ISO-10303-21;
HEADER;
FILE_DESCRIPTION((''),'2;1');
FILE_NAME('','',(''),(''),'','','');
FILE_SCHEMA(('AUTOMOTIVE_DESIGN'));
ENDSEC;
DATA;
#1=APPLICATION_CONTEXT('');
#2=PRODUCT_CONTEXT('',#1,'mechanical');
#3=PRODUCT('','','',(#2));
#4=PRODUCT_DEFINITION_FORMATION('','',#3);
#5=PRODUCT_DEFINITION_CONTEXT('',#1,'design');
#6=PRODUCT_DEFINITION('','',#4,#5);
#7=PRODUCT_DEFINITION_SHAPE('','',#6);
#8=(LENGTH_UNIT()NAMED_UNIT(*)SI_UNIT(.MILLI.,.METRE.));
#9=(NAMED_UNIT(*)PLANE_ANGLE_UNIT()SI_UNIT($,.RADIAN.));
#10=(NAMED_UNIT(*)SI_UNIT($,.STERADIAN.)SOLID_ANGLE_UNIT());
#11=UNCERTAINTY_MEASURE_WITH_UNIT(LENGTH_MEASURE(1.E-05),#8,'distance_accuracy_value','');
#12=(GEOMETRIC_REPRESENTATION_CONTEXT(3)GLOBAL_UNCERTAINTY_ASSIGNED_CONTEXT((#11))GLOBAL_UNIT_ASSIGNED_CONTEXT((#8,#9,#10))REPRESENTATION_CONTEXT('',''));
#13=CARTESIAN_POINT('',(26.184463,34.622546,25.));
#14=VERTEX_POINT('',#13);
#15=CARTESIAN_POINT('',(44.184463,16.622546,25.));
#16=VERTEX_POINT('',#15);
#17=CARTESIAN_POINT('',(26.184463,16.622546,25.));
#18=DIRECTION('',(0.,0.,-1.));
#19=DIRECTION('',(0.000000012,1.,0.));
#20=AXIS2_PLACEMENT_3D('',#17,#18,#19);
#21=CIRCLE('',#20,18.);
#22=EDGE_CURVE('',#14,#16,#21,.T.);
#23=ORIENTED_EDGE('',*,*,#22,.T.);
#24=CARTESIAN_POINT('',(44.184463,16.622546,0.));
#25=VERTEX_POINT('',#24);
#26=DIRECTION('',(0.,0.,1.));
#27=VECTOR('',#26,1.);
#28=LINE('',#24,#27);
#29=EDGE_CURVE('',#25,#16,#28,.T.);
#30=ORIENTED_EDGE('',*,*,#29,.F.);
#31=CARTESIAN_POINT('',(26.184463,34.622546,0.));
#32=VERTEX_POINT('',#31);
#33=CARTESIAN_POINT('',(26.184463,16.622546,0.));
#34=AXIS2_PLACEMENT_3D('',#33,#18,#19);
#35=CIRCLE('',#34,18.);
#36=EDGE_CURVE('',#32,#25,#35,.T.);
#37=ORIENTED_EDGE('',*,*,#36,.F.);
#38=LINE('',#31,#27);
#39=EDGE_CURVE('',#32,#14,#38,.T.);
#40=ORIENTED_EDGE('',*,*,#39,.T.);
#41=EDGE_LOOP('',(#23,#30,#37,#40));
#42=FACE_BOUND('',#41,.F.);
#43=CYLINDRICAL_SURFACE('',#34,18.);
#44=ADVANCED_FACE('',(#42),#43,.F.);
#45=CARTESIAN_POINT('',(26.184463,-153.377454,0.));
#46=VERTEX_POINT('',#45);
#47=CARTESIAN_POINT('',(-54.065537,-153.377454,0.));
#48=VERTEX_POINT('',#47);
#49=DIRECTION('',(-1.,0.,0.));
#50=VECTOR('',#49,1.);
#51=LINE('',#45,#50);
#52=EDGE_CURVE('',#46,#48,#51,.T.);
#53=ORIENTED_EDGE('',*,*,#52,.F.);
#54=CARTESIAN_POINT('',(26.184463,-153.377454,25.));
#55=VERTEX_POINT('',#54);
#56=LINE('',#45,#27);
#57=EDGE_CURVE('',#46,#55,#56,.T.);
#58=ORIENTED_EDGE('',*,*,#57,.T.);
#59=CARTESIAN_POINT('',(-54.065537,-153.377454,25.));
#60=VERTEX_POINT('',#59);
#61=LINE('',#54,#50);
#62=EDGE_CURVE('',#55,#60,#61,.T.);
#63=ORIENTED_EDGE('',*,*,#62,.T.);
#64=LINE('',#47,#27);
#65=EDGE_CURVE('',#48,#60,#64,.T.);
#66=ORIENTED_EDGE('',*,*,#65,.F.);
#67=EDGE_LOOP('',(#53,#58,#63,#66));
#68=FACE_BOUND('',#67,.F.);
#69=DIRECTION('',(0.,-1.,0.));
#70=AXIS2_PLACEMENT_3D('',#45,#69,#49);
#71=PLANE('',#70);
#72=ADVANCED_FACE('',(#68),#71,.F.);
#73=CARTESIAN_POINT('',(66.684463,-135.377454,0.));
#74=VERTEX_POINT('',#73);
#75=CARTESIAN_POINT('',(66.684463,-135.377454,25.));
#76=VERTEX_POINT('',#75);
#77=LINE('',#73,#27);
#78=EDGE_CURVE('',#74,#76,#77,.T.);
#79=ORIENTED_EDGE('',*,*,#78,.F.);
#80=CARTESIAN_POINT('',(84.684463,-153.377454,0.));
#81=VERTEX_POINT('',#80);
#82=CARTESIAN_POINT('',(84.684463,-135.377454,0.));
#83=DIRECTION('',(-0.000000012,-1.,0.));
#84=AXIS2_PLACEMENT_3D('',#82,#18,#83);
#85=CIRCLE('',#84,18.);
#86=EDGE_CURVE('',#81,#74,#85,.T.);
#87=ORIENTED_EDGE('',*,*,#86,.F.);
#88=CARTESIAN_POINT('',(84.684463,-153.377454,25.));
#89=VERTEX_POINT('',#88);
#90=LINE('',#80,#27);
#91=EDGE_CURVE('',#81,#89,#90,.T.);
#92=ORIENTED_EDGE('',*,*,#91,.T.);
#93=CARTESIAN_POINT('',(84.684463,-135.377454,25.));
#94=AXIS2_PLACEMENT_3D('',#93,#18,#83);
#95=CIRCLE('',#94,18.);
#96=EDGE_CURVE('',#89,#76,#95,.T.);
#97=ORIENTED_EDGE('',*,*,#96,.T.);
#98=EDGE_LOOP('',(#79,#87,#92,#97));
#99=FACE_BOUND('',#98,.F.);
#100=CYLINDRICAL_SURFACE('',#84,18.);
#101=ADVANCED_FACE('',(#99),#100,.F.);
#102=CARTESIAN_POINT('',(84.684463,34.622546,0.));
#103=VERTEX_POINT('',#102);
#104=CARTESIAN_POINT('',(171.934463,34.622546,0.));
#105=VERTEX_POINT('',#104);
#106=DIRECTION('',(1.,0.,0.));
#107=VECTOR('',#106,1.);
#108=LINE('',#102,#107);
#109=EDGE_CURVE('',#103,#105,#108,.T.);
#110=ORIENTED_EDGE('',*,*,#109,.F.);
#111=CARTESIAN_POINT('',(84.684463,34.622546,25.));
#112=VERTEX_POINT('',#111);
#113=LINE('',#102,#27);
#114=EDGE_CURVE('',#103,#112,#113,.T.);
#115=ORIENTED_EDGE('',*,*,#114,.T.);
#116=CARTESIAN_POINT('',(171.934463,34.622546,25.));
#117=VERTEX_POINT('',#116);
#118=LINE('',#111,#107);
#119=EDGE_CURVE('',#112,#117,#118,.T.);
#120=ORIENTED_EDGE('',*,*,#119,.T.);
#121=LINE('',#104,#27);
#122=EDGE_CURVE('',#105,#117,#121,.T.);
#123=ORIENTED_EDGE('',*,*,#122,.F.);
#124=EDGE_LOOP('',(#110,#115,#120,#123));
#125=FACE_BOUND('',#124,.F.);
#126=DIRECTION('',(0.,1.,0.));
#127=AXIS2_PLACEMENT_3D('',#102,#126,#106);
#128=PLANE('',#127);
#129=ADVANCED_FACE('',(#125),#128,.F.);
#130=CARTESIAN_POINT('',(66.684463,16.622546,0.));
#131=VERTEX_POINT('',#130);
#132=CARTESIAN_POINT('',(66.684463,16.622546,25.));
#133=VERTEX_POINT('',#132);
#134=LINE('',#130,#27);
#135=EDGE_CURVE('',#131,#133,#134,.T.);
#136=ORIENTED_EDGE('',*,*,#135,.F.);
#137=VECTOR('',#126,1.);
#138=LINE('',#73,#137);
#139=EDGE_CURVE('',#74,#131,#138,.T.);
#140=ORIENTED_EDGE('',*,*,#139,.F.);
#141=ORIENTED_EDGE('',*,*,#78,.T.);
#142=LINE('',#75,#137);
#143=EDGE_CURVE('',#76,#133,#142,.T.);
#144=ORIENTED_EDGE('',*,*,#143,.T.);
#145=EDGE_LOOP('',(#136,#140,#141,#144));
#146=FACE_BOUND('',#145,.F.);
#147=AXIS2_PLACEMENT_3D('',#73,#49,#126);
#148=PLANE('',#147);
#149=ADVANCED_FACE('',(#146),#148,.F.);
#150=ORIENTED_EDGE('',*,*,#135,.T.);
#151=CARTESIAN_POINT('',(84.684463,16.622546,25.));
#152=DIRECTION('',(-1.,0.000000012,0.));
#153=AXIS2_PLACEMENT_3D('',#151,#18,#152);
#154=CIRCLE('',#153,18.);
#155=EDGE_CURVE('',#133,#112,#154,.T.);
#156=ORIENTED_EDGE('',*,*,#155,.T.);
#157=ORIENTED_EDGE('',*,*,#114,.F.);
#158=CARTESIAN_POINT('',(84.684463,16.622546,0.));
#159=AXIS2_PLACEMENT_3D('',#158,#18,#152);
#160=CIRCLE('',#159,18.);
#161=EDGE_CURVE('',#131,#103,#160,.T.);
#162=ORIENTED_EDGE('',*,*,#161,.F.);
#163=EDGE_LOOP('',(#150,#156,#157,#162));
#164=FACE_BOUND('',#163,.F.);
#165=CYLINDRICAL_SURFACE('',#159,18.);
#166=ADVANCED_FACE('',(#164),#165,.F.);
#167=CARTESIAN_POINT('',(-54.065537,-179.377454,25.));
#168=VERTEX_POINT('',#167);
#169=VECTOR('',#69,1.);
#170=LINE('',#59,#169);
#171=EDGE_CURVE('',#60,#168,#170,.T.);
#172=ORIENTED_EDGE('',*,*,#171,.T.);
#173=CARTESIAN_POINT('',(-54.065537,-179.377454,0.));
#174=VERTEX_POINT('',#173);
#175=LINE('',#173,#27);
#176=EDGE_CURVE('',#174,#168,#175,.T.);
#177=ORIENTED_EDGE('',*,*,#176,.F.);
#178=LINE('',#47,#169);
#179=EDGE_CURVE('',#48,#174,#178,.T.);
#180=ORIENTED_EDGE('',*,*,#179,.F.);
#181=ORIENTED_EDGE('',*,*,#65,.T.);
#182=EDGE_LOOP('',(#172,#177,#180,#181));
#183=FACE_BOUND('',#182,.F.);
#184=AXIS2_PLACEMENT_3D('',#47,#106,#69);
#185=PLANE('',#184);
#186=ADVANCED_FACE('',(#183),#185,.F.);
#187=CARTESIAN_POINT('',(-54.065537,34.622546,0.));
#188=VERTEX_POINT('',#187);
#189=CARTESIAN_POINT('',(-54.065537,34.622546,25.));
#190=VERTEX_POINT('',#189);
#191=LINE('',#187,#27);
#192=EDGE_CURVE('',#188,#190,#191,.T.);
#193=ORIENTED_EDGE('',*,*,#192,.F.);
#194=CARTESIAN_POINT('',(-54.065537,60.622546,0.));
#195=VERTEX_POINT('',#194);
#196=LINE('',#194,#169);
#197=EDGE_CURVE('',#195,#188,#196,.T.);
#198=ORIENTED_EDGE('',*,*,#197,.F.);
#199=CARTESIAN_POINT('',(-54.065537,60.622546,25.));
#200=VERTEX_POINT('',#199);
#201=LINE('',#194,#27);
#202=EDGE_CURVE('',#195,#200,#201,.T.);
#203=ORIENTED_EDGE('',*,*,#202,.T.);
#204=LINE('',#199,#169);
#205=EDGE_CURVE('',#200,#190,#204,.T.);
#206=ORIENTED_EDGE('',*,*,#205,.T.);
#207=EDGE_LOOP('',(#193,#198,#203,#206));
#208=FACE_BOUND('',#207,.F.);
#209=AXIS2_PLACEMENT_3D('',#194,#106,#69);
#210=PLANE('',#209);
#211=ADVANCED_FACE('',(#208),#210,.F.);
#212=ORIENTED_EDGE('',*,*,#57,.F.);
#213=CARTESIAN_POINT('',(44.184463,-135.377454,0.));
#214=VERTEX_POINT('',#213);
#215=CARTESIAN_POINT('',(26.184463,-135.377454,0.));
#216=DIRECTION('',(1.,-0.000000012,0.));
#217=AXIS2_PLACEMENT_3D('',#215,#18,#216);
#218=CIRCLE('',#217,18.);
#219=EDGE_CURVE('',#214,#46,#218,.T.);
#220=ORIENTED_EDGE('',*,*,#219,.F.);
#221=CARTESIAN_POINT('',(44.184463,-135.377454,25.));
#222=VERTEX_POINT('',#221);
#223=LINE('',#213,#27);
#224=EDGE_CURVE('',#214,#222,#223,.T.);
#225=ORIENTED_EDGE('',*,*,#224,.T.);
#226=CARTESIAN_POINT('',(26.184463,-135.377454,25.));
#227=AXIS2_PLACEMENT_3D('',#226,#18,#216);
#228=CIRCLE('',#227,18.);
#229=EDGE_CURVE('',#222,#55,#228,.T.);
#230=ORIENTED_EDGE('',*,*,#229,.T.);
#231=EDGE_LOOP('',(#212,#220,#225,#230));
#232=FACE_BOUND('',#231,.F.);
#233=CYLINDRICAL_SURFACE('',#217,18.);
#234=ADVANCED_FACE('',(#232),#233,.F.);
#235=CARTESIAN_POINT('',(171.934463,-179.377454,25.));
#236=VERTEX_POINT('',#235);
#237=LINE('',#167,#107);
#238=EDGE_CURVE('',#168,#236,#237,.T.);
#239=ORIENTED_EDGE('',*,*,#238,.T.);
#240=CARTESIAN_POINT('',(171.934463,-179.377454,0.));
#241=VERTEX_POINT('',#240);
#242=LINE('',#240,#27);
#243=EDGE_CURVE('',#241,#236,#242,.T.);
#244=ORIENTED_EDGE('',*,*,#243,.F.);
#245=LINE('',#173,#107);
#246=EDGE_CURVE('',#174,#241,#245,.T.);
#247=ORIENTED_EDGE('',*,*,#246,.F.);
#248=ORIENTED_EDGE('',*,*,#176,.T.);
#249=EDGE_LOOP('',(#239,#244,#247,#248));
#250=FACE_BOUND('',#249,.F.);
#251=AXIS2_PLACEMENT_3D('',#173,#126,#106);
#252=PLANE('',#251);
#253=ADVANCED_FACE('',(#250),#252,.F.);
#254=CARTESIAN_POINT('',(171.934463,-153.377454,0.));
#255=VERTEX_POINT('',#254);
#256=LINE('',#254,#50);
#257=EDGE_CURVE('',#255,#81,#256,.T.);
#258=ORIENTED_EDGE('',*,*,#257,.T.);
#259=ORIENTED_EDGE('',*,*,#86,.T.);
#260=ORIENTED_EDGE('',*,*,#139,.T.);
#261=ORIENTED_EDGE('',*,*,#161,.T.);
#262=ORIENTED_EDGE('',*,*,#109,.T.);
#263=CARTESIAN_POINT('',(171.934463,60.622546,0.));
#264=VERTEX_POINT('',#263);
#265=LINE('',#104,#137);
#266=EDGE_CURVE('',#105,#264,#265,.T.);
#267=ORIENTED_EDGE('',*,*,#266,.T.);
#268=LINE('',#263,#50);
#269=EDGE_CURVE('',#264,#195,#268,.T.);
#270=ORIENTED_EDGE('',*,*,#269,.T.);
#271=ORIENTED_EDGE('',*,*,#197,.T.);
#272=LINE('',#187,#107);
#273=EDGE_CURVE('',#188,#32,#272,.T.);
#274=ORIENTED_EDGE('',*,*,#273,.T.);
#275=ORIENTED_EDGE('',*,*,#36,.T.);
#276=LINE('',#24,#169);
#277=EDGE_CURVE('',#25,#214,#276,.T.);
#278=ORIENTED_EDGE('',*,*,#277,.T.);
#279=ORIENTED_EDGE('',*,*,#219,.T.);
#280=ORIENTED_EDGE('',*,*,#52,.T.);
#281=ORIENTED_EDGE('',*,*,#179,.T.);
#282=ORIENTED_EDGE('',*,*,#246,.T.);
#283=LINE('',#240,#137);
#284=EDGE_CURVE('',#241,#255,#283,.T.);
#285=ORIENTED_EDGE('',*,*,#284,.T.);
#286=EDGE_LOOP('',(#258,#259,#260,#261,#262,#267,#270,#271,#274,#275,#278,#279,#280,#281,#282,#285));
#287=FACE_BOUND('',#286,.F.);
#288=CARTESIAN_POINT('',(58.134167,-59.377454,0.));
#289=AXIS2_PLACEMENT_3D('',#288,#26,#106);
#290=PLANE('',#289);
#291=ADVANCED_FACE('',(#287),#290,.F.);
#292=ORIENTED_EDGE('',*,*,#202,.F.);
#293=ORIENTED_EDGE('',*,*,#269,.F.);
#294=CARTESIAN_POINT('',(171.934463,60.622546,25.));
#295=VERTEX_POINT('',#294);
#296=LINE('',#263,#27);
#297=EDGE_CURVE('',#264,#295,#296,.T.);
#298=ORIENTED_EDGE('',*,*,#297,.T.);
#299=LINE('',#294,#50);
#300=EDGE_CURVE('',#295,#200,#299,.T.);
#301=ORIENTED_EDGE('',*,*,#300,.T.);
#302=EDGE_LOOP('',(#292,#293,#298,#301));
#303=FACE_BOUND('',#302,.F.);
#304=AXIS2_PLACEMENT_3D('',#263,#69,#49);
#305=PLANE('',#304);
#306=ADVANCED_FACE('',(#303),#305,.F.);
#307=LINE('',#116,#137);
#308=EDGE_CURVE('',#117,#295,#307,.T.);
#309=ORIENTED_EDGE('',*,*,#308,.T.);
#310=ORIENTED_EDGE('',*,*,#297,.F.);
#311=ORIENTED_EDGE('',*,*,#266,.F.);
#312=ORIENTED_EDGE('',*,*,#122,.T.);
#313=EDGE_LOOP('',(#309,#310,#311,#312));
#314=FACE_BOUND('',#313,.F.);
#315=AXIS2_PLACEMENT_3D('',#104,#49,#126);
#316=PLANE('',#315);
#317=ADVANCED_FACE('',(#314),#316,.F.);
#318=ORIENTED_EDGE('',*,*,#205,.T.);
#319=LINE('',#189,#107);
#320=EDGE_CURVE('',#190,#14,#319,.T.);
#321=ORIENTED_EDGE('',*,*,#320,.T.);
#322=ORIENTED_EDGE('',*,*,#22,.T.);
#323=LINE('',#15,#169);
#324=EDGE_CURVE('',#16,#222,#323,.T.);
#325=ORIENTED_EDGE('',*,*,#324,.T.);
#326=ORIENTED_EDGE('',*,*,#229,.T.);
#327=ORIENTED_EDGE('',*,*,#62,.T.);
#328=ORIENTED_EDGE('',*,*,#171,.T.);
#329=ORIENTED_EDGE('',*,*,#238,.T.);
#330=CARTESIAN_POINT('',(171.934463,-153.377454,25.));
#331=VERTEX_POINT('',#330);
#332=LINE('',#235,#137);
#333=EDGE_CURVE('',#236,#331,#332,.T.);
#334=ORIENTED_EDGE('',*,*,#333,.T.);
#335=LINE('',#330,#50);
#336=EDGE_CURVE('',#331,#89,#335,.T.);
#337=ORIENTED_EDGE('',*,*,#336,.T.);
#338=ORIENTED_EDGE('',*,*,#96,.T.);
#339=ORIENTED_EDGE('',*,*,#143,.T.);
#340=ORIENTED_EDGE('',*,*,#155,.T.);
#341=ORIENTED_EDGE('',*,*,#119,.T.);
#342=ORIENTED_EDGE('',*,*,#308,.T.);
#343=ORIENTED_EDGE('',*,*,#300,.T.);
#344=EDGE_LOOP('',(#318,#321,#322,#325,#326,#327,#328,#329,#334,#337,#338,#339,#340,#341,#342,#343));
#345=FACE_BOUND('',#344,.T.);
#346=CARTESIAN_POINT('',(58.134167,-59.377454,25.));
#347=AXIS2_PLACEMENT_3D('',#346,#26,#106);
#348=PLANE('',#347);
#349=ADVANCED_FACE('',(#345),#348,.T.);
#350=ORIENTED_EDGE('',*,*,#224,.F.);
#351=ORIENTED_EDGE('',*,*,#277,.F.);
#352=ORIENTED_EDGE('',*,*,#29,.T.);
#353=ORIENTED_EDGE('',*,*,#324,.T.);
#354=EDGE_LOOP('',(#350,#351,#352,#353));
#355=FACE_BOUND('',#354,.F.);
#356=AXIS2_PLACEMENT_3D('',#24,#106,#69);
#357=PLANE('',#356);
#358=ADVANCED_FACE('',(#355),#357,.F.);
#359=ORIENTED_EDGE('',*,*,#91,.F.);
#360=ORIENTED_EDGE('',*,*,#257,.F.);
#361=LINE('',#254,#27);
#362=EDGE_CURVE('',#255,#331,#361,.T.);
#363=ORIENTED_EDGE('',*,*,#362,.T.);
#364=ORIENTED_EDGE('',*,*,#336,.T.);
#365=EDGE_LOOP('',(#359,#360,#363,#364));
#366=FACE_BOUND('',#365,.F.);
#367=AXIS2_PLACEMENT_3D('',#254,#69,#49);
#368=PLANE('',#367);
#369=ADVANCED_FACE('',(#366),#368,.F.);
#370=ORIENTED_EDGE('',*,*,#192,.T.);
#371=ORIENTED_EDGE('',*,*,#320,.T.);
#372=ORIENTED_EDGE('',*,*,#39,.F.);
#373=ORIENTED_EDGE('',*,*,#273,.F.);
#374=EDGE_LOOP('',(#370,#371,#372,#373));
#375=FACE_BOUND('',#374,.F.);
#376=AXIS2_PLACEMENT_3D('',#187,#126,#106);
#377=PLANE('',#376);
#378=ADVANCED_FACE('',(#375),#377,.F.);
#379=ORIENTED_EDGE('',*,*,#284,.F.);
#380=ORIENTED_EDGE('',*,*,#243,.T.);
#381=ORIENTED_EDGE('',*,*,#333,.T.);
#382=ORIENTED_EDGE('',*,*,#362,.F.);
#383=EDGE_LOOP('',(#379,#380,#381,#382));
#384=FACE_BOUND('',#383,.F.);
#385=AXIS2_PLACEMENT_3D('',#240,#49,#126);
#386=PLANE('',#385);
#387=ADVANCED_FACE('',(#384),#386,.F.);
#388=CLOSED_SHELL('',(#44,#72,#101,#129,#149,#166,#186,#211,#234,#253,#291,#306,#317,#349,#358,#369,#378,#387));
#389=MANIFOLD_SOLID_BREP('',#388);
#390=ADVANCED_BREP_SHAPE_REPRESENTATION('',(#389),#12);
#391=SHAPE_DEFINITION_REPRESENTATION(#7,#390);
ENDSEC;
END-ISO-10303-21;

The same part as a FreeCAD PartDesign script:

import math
import FreeCAD as App
import Part
import Sketcher
Q = App.Units.Quantity

doc = App.newDocument("Part")
body = doc.addObject("PartDesign::Body", "Body")

# Sketch on XY plane
sketch1 = doc.addObject("Sketcher::SketchObject", "Sketch")
body.addObject(sketch1)
sketch1.AttachmentSupport = (doc.XY_Plane, [""])
sketch1.MapMode = "FlatFace"
sketch1.addGeometry([
    Part.LineSegment(App.Vector(172, 61, 0), App.Vector(-54, 61, 0)),  # 0
    Part.LineSegment(App.Vector(-54, 61, 0), App.Vector(-54, 35, 0)),  # 1
    Part.LineSegment(App.Vector(-54, 35, 0), App.Vector(26, 35, 0)),  # 2
    Part.ArcOfCircle(Part.Circle(App.Vector(26, 17, 0), App.Vector(0, 0, 1), 18), math.radians(0), math.radians(90)),  # 3
    Part.LineSegment(App.Vector(44, 17, 0), App.Vector(44, -135, 0)),  # 4
    Part.ArcOfCircle(Part.Circle(App.Vector(26, -135, 0), App.Vector(0, 0, 1), 18), math.radians(-90), math.radians(0)),  # 5
    Part.LineSegment(App.Vector(26, -153, 0), App.Vector(-54, -153, 0)),  # 6
    Part.LineSegment(App.Vector(-54, -153, 0), App.Vector(-54, -179, 0)),  # 7
    Part.LineSegment(App.Vector(-54, -179, 0), App.Vector(172, -179, 0)),  # 8
    Part.LineSegment(App.Vector(172, -179, 0), App.Vector(172, -153, 0)),  # 9
    Part.LineSegment(App.Vector(172, -153, 0), App.Vector(85, -153, 0)),  # 10
    Part.ArcOfCircle(Part.Circle(App.Vector(85, -135, 0), App.Vector(0, 0, 1), 18), math.radians(-180), math.radians(-90)),  # 11
    Part.LineSegment(App.Vector(67, -135, 0), App.Vector(67, 17, 0)),  # 12
    Part.ArcOfCircle(Part.Circle(App.Vector(85, 17, 0), App.Vector(0, 0, 1), 18), math.radians(90), math.radians(180)),  # 13
    Part.LineSegment(App.Vector(85, 35, 0), App.Vector(172, 35, 0)),  # 14
    Part.LineSegment(App.Vector(172, 35, 0), App.Vector(172, 61, 0)),  # 15
], False)
sketch1.addConstraint([
    Sketcher.Constraint("Coincident", 0, 2, 1, 1),
    Sketcher.Constraint("Coincident", 1, 2, 2, 1),
    Sketcher.Constraint("Tangent", 2, 2, 3, 2),
    Sketcher.Constraint("Tangent", 3, 1, 4, 1),
    Sketcher.Constraint("Tangent", 4, 2, 5, 2),
    Sketcher.Constraint("Tangent", 5, 1, 6, 1),
    Sketcher.Constraint("Coincident", 6, 2, 7, 1),
    Sketcher.Constraint("Coincident", 7, 2, 8, 1),
    Sketcher.Constraint("Coincident", 8, 2, 9, 1),
    Sketcher.Constraint("Coincident", 9, 2, 10, 1),
    Sketcher.Constraint("Tangent", 10, 2, 11, 2),
    Sketcher.Constraint("Tangent", 11, 1, 12, 1),
    Sketcher.Constraint("Tangent", 12, 2, 13, 2),
    Sketcher.Constraint("Tangent", 13, 1, 14, 1),
    Sketcher.Constraint("Coincident", 14, 2, 15, 1),
    Sketcher.Constraint("Coincident", 15, 2, 0, 1),
    Sketcher.Constraint("Horizontal", 0),
    Sketcher.Constraint("Vertical", 1),
    Sketcher.Constraint("Horizontal", 2),
    Sketcher.Constraint("Vertical", 4),
    Sketcher.Constraint("Horizontal", 6),
    Sketcher.Constraint("Vertical", 7),
    Sketcher.Constraint("Horizontal", 8),
    Sketcher.Constraint("Vertical", 9),
    Sketcher.Constraint("Horizontal", 10),
    Sketcher.Constraint("Vertical", 12),
    Sketcher.Constraint("Horizontal", 14),
    Sketcher.Constraint("Vertical", 15),
    Sketcher.Constraint("Equal", 3, 5),
    Sketcher.Constraint("Equal", 5, 11),
    Sketcher.Constraint("Equal", 11, 13),
    Sketcher.Constraint("Horizontal", 5, 3, 11, 3),
    Sketcher.Constraint("Horizontal", 3, 3, 13, 3),
    Sketcher.Constraint("Vertical", 1, 2, 6, 2),
    Sketcher.Constraint("Vertical", 9, 2, 14, 2),
    Sketcher.Constraint("Equal", 1, 7),
    Sketcher.Constraint("Radius", 3, Q("18 mm")),
    Sketcher.Constraint("DistanceX", 0, 2, 0, 1, Q("226 mm")),
    Sketcher.Constraint("DistanceY", 1, 2, 1, 1, Q("26 mm")),
    Sketcher.Constraint("DistanceY", 4, 2, 4, 1, Q("152 mm")),
    Sketcher.Constraint("DistanceX", 2, 1, 2, 2, Q("80.25 mm")),
    Sketcher.Constraint("DistanceX", 10, 2, 10, 1, Q("87.25 mm")),
    Sketcher.Constraint("DistanceX", -1, 1, 3, 3, Q("26.184463 mm")),
    Sketcher.Constraint("DistanceY", -1, 1, 3, 3, Q("16.622546 mm")),
])
pad1 = doc.addObject("PartDesign::Pad", "Pad")
body.addObject(pad1)
pad1.Profile = sketch1
pad1.Length = 25

doc.recompute()
